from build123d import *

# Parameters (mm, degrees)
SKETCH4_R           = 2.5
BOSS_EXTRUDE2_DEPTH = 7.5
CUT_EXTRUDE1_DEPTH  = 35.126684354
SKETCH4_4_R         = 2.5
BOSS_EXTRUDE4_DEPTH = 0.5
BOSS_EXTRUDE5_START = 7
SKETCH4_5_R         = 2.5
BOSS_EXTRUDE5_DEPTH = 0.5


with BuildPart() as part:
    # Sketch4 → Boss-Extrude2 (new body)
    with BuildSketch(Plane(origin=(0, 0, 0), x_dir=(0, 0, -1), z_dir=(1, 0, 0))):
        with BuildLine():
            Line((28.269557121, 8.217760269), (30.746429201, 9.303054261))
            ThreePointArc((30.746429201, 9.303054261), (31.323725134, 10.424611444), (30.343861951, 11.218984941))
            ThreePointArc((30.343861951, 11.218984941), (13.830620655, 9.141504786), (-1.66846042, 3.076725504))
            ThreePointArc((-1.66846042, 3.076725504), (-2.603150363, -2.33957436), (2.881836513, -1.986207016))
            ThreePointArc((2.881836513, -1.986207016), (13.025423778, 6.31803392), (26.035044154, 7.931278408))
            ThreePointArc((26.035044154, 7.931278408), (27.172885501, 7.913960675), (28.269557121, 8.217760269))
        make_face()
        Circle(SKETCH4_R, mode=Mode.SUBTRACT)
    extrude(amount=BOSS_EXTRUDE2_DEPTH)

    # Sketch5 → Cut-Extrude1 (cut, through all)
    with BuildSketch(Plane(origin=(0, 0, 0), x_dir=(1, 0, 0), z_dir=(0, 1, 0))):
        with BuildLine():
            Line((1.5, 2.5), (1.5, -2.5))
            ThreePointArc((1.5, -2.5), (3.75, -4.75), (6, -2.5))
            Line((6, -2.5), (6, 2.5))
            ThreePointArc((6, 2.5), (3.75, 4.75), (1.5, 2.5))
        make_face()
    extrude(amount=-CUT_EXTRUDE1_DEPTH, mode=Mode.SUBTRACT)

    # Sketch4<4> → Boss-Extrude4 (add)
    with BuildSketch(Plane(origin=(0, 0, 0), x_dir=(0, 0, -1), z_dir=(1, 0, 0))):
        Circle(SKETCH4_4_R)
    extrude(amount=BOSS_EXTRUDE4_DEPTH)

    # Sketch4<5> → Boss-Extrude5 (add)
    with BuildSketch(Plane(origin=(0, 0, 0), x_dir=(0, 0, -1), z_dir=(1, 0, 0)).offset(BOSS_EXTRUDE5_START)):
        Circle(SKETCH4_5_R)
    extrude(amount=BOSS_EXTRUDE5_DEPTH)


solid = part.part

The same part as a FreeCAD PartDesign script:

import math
import FreeCAD as App
import Part
import Sketcher
Q = App.Units.Quantity

doc = App.newDocument("Part")
body = doc.addObject("PartDesign::Body", "Body")

sketch1 = body.newObject("Sketcher::SketchObject", "Sketch")
sketch1.AttachmentSupport = (doc.getObject("YZ_Plane"), [""])
sketch1.MapMode = "FlatFace"
sketch1.addGeometry(Part.LineSegment(App.Vector(8.2, -28.3, 0), App.Vector(9.3, -30.7, 0)), False)
sketch1.addGeometry(Part.ArcOfCircle(Part.Circle(App.Vector(10.2, -30.3, 0), App.Vector(0, 0, 1), 1), math.radians(-156), math.radians(0)), False)
sketch1.addGeometry(Part.ArcOfCircle(Part.Circle(App.Vector(-56.1, -30.4, 0), App.Vector(0, 0, 1), 67.3), math.radians(0), math.radians(28)), False)
sketch1.addGeometry(Part.ArcOfCircle(Part.Circle(App.Vector(0, 0, 0), App.Vector(0, 0, 1), 3.5), math.radians(28), math.radians(235)), False)
sketch1.addGeometry(Part.ArcOfCircle(Part.Circle(App.Vector(-15.4, -22.3, 0), App.Vector(0, 0, 1), 23.6), math.radians(-9), math.radians(55)), False)
sketch1.addGeometry(Part.ArcOfCircle(Part.Circle(App.Vector(11.9, -26.7, 0), App.Vector(0, 0, 1), 4), math.radians(171), math.radians(204)), False)
sketch1.addGeometry(Part.Circle(App.Vector(0, 0, 0), App.Vector(0, 0, 1), 2.5), False)
sketch1.addConstraint(Sketcher.Constraint("Tangent", 0, 2, 1, 1))
sketch1.addConstraint(Sketcher.Constraint("Tangent", 1, 2, 2, 1))
sketch1.addConstraint(Sketcher.Constraint("Tangent", 2, 2, 3, 1))
sketch1.addConstraint(Sketcher.Constraint("Tangent", 3, 2, 4, 2))
sketch1.addConstraint(Sketcher.Constraint("Tangent", 4, 1, 5, 1))
sketch1.addConstraint(Sketcher.Constraint("Tangent", 5, 2, 0, 1))
sketch1.addConstraint(Sketcher.Constraint("Coincident", 3, 3, -1, 1))
sketch1.addConstraint(Sketcher.Constraint("Coincident", 6, 3, -1, 1))
sketch1.addConstraint(Sketcher.Constraint("Diameter", 6, Q("5 mm")))
sketch1.addConstraint(Sketcher.Constraint("Radius", 1, Q("1 mm")))
sketch1.addConstraint(Sketcher.Constraint("Radius", 5, Q("4 mm")))
sketch1.addConstraint(Sketcher.Constraint("Radius", 3, Q("3.5 mm")))
sketch1.addConstraint(Sketcher.Constraint("Radius", 2, Q("67.327673 mm")))
sketch1.addConstraint(Sketcher.Constraint("Radius", 4, Q("23.609452 mm")))
sketch1.addConstraint(Sketcher.Constraint("DistanceX", 1, 3, 5, 3, Q("1.6625 mm")))
sketch1.addConstraint(Sketcher.Constraint("Distance", 0, Q("2.704211 mm")))
sketch1.addConstraint(Sketcher.Constraint("DistanceY", 2, 3, -1, 1, Q("30.426842 mm")))
sketch1.addConstraint(Sketcher.Constraint("DistanceX", 4, 3, -1, 1, Q("15.384281 mm")))
pad1 = body.newObject("PartDesign::Pad", "Pad")
pad1.Profile = sketch1
pad1.Length = 7.5

sketch2 = body.newObject("Sketcher::SketchObject", "Sketch001")
sketch2.AttachmentSupport = (doc.getObject("XZ_Plane"), [""])
sketch2.MapMode = "FlatFace"
sketch2.addGeometry(Part.LineSegment(App.Vector(1.5, -2.5, 0), App.Vector(1.5, 2.5, 0)), False)
sketch2.addGeometry(Part.ArcOfCircle(Part.Circle(App.Vector(3.8, 2.5, 0), App.Vector(0, 0, 1), 2.2), math.radians(0), math.radians(180)), False)
sketch2.addGeometry(Part.LineSegment(App.Vector(6, 2.5, 0), App.Vector(6, -2.5, 0)), False)
sketch2.addGeometry(Part.ArcOfCircle(Part.Circle(App.Vector(3.8, -2.5, 0), App.Vector(0, 0, 1), 2.2), math.radians(180), math.radians(360)), False)
sketch2.addConstraint(Sketcher.Constraint("Tangent", 0, 2, 1, 2))
sketch2.addConstraint(Sketcher.Constraint("Tangent", 1, 1, 2, 1))
sketch2.addConstraint(Sketcher.Constraint("Tangent", 2, 2, 3, 2))
sketch2.addConstraint(Sketcher.Constraint("Tangent", 3, 1, 0, 1))
sketch2.addConstraint(Sketcher.Constraint("Vertical", 0))
sketch2.addConstraint(Sketcher.Constraint("Vertical", 2))
sketch2.addConstraint(Sketcher.Constraint("DistanceY", 0, 1, 0, 2, Q("5 mm")))
sketch2.addConstraint(Sketcher.Constraint("Radius", 1, Q("2.25 mm")))
sketch2.addConstraint(Sketcher.Constraint("DistanceX", -1, 1, 1, 1, Q("6 mm")))
sketch2.addConstraint(Sketcher.Constraint("DistanceY", -1, 1, 1, 3, Q("2.5 mm")))
pocket1 = body.newObject("PartDesign::Pocket", "Pocket")
pocket1.Profile = sketch2
pocket1.Type = "ThroughAll"
pocket1.Reversed = True

sketch3 = body.newObject("Sketcher::SketchObject", "Sketch002")
sketch3.AttachmentSupport = (doc.getObject("YZ_Plane"), [""])
sketch3.MapMode = "FlatFace"
sketch3.addGeometry(Part.Circle(App.Vector(0, 0, 0), App.Vector(0, 0, 1), 2.5), False)
sketch3.addConstraint(Sketcher.Constraint("Coincident", 0, 3, -1, 1))
sketch3.addConstraint(Sketcher.Constraint("Diameter", 0, Q("5 mm")))
pad2 = body.newObject("PartDesign::Pad", "Pad001")
pad2.Profile = sketch3
pad2.Length = 0.5

sketch4 = body.newObject("Sketcher::SketchObject", "Sketch003")
sketch4.AttachmentSupport = (doc.getObject("YZ_Plane"), [""])
sketch4.MapMode = "FlatFace"
sketch4.AttachmentOffset = App.Placement(App.Vector(0, 0, 7), App.Rotation())
sketch4.addGeometry(Part.Circle(App.Vector(0, 0, 0), App.Vector(0, 0, 1), 2.5), False)
sketch4.addConstraint(Sketcher.Constraint("Coincident", 0, 3, -1, 1))
sketch4.addConstraint(Sketcher.Constraint("Diameter", 0, Q("5 mm")))
pad3 = body.newObject("PartDesign::Pad", "Pad002")
pad3.Profile = sketch4
pad3.Length = 0.5

doc.recompute()
